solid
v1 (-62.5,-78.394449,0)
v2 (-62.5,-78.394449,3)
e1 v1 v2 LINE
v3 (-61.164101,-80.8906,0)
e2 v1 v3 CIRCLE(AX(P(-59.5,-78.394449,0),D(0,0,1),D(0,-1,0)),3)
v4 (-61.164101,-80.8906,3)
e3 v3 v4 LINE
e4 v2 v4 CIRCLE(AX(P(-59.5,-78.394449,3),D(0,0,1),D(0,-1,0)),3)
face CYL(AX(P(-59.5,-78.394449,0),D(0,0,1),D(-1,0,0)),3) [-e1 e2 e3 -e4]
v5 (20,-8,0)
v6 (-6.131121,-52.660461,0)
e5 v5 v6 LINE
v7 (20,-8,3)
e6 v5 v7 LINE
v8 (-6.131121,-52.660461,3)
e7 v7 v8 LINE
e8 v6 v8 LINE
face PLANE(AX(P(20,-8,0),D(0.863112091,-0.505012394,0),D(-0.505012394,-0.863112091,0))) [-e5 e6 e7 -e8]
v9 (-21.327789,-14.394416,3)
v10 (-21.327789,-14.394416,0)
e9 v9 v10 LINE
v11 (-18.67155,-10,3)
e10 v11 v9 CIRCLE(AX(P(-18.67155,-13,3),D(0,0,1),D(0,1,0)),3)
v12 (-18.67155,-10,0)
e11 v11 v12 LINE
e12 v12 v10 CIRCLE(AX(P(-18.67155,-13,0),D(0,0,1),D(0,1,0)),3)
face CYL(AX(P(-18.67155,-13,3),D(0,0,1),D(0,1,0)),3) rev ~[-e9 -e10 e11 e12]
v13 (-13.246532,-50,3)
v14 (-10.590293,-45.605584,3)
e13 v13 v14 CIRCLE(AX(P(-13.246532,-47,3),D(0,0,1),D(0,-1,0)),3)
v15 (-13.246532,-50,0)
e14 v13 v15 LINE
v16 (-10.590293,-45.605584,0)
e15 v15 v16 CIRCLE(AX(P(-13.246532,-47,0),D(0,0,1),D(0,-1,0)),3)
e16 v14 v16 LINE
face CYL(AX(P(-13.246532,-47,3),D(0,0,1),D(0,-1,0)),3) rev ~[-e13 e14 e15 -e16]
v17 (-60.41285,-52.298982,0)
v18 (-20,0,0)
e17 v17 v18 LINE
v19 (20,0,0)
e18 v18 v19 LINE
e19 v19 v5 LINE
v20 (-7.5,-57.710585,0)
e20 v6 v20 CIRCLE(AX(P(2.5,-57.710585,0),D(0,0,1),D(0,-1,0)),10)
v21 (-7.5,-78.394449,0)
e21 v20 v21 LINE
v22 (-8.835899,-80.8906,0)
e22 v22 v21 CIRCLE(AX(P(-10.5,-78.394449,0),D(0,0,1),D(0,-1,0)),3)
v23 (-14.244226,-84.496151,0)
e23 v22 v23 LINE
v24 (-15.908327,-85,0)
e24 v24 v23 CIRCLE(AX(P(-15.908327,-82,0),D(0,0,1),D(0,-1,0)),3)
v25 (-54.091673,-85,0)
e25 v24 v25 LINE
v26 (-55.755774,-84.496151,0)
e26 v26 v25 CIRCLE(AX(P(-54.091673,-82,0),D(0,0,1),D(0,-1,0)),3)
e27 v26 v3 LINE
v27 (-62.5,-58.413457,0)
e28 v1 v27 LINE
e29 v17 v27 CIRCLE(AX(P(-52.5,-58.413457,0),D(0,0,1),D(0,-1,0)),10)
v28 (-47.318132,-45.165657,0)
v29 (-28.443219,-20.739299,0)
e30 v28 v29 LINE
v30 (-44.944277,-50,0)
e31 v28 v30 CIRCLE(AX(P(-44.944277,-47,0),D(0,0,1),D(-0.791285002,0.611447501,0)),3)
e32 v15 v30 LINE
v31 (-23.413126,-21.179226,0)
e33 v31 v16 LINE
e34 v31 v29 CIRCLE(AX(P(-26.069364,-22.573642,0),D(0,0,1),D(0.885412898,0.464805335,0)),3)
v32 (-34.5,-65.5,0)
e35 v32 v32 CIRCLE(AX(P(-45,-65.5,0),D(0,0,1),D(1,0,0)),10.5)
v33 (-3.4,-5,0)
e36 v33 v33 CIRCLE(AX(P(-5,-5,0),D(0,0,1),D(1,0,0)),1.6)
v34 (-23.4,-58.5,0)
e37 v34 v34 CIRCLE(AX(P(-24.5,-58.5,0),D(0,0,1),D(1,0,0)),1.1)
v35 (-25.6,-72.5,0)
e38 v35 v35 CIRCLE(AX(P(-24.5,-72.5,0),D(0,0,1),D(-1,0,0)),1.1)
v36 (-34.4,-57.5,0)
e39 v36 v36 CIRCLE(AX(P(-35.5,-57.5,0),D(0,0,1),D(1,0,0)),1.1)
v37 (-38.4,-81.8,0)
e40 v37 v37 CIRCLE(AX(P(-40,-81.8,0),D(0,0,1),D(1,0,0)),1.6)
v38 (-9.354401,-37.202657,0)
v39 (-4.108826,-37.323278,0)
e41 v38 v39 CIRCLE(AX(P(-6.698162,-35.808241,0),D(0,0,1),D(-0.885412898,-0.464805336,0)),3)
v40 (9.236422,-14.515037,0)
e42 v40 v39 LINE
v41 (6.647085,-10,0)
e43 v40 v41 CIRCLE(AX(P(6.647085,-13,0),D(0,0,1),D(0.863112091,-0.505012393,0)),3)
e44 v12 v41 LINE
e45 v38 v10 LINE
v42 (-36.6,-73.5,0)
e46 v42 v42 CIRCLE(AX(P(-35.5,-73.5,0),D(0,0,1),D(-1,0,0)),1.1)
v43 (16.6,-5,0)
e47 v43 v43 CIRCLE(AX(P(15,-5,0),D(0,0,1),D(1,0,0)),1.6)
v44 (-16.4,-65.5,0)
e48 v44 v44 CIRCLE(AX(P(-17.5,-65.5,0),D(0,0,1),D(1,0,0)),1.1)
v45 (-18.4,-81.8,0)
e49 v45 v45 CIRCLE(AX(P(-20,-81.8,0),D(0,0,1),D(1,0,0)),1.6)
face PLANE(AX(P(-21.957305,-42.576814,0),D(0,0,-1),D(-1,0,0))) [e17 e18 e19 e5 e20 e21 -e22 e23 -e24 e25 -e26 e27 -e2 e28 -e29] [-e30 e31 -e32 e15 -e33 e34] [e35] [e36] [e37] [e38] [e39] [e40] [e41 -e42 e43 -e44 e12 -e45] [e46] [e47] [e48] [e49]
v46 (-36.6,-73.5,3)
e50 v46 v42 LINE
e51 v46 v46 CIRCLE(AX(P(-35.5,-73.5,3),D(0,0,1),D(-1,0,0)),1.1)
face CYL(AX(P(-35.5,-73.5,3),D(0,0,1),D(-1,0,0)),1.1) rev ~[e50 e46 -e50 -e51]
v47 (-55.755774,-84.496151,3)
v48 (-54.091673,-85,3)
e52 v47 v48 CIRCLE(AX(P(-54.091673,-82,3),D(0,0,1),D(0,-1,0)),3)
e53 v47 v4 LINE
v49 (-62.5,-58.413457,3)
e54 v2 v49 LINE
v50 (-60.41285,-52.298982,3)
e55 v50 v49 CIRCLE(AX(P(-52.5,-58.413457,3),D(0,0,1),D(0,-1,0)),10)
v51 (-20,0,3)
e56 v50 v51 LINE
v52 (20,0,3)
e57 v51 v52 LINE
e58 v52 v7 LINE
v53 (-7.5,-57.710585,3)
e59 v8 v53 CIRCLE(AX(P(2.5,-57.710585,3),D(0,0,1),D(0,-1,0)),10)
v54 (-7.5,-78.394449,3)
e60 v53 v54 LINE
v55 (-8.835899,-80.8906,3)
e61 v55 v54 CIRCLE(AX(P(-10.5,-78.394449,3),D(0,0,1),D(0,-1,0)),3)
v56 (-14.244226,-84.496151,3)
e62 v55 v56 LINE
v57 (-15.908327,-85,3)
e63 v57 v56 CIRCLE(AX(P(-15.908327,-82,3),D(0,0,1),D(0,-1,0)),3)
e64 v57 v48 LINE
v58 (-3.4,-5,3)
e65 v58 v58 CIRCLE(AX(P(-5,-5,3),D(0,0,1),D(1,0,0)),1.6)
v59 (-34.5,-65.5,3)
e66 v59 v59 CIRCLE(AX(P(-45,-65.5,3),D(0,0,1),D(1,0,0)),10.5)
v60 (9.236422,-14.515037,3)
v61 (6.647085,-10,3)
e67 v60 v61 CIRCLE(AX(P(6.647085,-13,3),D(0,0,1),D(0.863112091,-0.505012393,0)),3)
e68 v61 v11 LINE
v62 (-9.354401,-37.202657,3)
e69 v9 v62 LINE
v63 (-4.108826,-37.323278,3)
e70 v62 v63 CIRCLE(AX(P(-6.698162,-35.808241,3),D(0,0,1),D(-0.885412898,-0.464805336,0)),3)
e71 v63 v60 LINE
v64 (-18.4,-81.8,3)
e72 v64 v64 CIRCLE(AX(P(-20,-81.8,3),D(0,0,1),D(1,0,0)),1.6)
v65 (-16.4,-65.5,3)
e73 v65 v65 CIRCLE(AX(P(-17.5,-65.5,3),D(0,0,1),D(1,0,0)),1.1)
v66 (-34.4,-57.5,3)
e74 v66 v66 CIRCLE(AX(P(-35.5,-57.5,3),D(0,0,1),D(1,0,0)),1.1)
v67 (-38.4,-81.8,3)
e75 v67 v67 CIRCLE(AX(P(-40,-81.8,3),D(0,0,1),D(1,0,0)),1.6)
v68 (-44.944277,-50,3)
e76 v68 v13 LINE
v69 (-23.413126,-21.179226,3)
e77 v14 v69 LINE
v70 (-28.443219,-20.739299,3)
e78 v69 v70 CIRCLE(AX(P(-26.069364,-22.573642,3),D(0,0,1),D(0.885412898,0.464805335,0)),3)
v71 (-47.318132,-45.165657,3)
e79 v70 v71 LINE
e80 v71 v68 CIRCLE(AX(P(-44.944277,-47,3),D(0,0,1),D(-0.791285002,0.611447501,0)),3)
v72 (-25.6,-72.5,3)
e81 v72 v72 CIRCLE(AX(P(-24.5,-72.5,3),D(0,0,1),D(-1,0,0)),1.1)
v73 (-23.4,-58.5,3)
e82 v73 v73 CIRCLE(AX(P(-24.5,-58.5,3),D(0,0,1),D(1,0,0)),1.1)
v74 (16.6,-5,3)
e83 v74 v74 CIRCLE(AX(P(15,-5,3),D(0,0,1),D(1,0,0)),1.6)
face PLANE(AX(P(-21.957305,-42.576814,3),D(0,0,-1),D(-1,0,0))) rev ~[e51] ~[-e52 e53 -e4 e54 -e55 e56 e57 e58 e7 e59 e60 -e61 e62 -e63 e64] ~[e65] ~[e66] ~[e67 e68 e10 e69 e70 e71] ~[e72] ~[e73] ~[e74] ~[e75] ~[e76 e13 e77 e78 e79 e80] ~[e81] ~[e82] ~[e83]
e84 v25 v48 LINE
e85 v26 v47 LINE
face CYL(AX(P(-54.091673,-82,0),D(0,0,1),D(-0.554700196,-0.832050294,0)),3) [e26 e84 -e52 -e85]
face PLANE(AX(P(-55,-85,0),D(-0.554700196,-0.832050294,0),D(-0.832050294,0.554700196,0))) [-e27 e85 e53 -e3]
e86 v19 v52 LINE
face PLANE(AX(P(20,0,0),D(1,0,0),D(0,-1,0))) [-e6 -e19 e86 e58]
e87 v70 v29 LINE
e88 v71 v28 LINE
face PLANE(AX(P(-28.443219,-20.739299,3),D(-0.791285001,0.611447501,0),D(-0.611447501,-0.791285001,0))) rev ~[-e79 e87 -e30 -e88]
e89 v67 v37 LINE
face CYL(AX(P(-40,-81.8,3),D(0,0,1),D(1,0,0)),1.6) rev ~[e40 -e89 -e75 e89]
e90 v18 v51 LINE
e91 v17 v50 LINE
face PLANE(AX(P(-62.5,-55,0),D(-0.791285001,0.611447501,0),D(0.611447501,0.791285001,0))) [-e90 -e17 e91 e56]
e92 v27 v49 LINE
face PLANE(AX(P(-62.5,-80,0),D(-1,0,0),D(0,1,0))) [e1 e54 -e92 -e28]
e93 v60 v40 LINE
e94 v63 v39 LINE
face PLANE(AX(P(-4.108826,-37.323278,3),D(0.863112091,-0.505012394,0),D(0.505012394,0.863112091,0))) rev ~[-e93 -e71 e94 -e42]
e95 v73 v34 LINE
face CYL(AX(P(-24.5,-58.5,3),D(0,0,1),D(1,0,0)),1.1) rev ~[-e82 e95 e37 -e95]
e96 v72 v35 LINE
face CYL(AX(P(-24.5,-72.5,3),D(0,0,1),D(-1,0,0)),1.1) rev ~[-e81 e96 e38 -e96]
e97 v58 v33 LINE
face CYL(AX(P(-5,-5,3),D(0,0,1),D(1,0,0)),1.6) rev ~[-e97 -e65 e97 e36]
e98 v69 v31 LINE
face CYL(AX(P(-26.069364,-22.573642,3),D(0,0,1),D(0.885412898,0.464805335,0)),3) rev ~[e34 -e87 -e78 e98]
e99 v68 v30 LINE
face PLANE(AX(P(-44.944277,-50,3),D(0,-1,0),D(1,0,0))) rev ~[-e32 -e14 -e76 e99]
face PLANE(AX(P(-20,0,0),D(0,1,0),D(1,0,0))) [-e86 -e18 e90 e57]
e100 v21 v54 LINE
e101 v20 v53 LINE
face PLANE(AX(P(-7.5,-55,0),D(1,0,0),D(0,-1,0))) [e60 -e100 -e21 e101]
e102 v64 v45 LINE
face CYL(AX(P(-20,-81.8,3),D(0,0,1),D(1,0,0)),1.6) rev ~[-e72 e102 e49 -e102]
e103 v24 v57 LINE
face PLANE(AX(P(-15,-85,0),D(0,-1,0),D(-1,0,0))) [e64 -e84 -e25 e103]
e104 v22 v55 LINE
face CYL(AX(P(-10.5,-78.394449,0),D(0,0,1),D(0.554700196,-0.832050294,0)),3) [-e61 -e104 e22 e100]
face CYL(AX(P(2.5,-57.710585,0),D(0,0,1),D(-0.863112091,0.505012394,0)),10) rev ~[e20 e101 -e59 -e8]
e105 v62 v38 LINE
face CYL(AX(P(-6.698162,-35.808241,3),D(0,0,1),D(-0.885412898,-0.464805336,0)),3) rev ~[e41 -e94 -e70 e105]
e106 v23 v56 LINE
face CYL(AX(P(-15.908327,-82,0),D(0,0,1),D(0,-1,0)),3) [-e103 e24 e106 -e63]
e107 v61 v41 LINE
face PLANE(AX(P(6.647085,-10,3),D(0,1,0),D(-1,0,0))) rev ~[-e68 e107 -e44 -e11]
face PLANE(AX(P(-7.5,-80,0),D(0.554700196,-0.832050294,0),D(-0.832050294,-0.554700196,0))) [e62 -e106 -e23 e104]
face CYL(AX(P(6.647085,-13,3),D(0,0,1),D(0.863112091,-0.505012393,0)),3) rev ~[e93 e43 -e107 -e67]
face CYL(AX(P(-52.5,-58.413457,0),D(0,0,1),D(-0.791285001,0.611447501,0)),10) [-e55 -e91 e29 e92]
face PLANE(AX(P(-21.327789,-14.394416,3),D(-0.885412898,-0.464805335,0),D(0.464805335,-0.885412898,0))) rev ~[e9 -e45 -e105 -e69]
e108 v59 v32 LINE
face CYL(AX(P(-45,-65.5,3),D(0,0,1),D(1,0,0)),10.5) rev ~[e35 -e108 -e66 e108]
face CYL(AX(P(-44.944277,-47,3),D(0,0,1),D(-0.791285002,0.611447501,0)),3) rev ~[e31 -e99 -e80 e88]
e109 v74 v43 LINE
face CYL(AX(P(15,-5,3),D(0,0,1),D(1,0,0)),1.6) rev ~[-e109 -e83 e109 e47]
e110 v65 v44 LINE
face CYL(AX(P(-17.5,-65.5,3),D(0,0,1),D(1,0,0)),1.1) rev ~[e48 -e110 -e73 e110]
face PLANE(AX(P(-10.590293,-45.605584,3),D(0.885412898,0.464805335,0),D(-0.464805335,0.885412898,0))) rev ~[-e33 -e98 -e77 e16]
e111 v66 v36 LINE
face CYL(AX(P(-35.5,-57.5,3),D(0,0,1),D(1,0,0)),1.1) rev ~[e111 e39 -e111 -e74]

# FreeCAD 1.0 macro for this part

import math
import FreeCAD as App
import Part
import Sketcher

V = App.Vector


def edges_at(feature, points):
    """Names of the edges that pass closest to the given points."""
    edges = feature.Shape.Edges
    near = lambda p: min(range(len(edges)), key=lambda i: edges[i].distToShape(Part.Vertex(*p))[0])
    return sorted({f"Edge{near(p) + 1}" for p in points})

doc = App.newDocument("Part")
params = doc.addObject("Spreadsheet::Sheet", "Params")
for row, (alias, value) in enumerate([
    ("sketch1_width", "40 mm"),
    ("sketch1_height", "25 mm"),
    ("sketch1_height2", "8 mm"),
    ("pad1_length", "3 mm"),
    ("sketch2_diameter", "21 mm"),
    ("sketch2_diameter2", "3.2 mm"),
    ("sketch2_diameter3", "2.2 mm"),
    ("sketch3_radius", "3 mm"),
    ("pocket2_length", "10 mm"),
    ("fillet_radius", "10 mm"),
    ("fillet2_radius", "3 mm"),
], start=1):
    params.set(f"A{row}", alias)
    params.set(f"B{row}", "=" + value)
    params.setAlias(f"B{row}", alias)

body = doc.addObject("PartDesign::Body", "Body")

sketch1 = body.newObject("Sketcher::SketchObject", "Sketch")
sketch1.AttachmentSupport = (doc.getObject("XY_Plane"), [""])
sketch1.MapMode = "FlatFace"
sketch1.addGeometry(Part.LineSegment(V(20, 0, 0), V(-20, 0, 0)), False)
sketch1.addGeometry(Part.LineSegment(V(-20, 0, 0), V(-62, -55, 0)), False)
sketch1.addGeometry(Part.LineSegment(V(-62, -55, 0), V(-62, -80, 0)), False)
sketch1.addGeometry(Part.LineSegment(V(-62, -80, 0), V(-55, -85, 0)), False)
sketch1.addGeometry(Part.LineSegment(V(-55, -85, 0), V(-15, -85, 0)), False)
sketch1.addGeometry(Part.LineSegment(V(-15, -85, 0), V(-8, -80, 0)), False)
sketch1.addGeometry(Part.LineSegment(V(-8, -80, 0), V(-8, -55, 0)), False)
sketch1.addGeometry(Part.LineSegment(V(-8, -55, 0), V(20, -8, 0)), False)
sketch1.addGeometry(Part.LineSegment(V(20, -8, 0), V(20, 0, 0)), False)
sketch1.addConstraint(Sketcher.Constraint("Coincident", 0, 2, 1, 1))
sketch1.addConstraint(Sketcher.Constraint("Coincident", 1, 2, 2, 1))
sketch1.addConstraint(Sketcher.Constraint("Coincident", 2, 2, 3, 1))
sketch1.addConstraint(Sketcher.Constraint("Coincident", 3, 2, 4, 1))
sketch1.addConstraint(Sketcher.Constraint("Coincident", 4, 2, 5, 1))
sketch1.addConstraint(Sketcher.Constraint("Coincident", 5, 2, 6, 1))
sketch1.addConstraint(Sketcher.Constraint("Coincident", 6, 2, 7, 1))
sketch1.addConstraint(Sketcher.Constraint("Coincident", 7, 2, 8, 1))
sketch1.addConstraint(Sketcher.Constraint("Coincident", 8, 2, 0, 1))
sketch1.addConstraint(Sketcher.Constraint("Horizontal", 0))
sketch1.addConstraint(Sketcher.Constraint("Vertical", 2))
sketch1.addConstraint(Sketcher.Constraint("Horizontal", 4))
sketch1.addConstraint(Sketcher.Constraint("Vertical", 6))
sketch1.addConstraint(Sketcher.Constraint("Vertical", 8))
sketch1.addConstraint(Sketcher.Constraint("Symmetric", 0, 2, 8, 2, -1, 1))
sketch1.addConstraint(Sketcher.Constraint("Horizontal", 2, 2, 5, 2))
sketch1.addConstraint(Sketcher.Constraint("Horizontal", 1, 2, 6, 2))
sketch1.addConstraint(Sketcher.Constraint("Equal", 0, 4))
sketch1.addConstraint(Sketcher.Constraint("Equal", 3, 5))
sketch1.addConstraint(Sketcher.Constraint("DistanceX", 0, 2, 0, 1, 40.0))
sketch1.addConstraint(Sketcher.Constraint("DistanceY", 2, 2, 2, 1, 25.0))
sketch1.addConstraint(Sketcher.Constraint("DistanceY", 8, 1, 8, 2, 8.0))
sketch1.addConstraint(Sketcher.Constraint("DistanceY", 1, 2, -1, 1, 55.0))
sketch1.addConstraint(Sketcher.Constraint("DistanceX", 3, 2, -1, 1, 55.0))
sketch1.addConstraint(Sketcher.Constraint("DistanceY", 3, 2, -1, 1, 85.0))
sketch1.addConstraint(Sketcher.Constraint("DistanceX", 2, 2, 5, 2, 55.0))
sketch1.setExpression("Constraints[19]", "Params.sketch1_width")
sketch1.setExpression("Constraints[20]", "Params.sketch1_height")
sketch1.setExpression("Constraints[21]", "Params.sketch1_height2")
pad1 = body.newObject("PartDesign::Pad", "Pad")
pad1.Profile = sketch1
pad1.setExpression("Length", "Params.pad1_length")

sketch2 = body.newObject("Sketcher::SketchObject", "Sketch001")
sketch2.AttachmentSupport = (doc.getObject("XY_Plane"), [""])
sketch2.MapMode = "FlatFace"
sketch2.AttachmentOffset = App.Placement(V(0, 0, 3), App.Rotation())
sketch2.addGeometry(Part.Circle(V(-5, -5, 0), V(0, 0, 1), 1.6), False)
sketch2.addGeometry(Part.Circle(V(15, -5, 0), V(0, 0, 1), 1.6), False)
sketch2.addGeometry(Part.Circle(V(-40, -81.8, 0), V(0, 0, 1), 1.6), False)
sketch2.addGeometry(Part.Circle(V(-20, -81.8, 0), V(0, 0, 1), 1.6), False)
sketch2.addGeometry(Part.Circle(V(-17.5, -65.5, 0), V(0, 0, 1), 1.1), False)
sketch2.addGeometry(Part.Circle(V(-24.5, -58.5, 0), V(0, 0, 1), 1.1), False)
sketch2.addGeometry(Part.Circle(V(-35.5, -57.5, 0), V(0, 0, 1), 1.1), False)
sketch2.addGeometry(Part.Circle(V(-35.5, -73.5, 0), V(0, 0, 1), 1.1), False)
sketch2.addGeometry(Part.Circle(V(-24.5, -72.5, 0), V(0, 0, 1), 1.1), False)
sketch2.addGeometry(Part.Circle(V(-45, -65.5, 0), V(0, 0, 1), 10.5), False)
sketch2.addConstraint(Sketcher.Constraint("Equal", 0, 1))
sketch2.addConstraint(Sketcher.Constraint("Equal", 1, 2))
sketch2.addConstraint(Sketcher.Constraint("Equal", 2, 3))
sketch2.addConstraint(Sketcher.Constraint("Equal", 4, 5))
sketch2.addConstraint(Sketcher.Constraint("Equal", 5, 6))
sketch2.addConstraint(Sketcher.Constraint("Equal", 6, 7))
sketch2.addConstraint(Sketcher.Constraint("Equal", 7, 8))
sketch2.addConstraint(Sketcher.Constraint("Horizontal", 0, 3, 1, 3))
sketch2.addConstraint(Sketcher.Constraint("Horizontal", 2, 3, 3, 3))
sketch2.addConstraint(Sketcher.Constraint("Horizontal", 4, 3, 9, 3))
sketch2.addConstraint(Sketcher.Constraint("Vertical", 6, 3, 7, 3))
sketch2.addConstraint(Sketcher.Constraint("Vertical", 5, 3, 8, 3))
sketch2.addConstraint(Sketcher.Constraint("Diameter", 9, 21.0))
sketch2.addConstraint(Sketcher.Constraint("Diameter", 0, 3.2))
sketch2.addConstraint(Sketcher.Constraint("Diameter", 4, 2.2))
sketch2.addConstraint(Sketcher.Constraint("DistanceX", 0, 3, -1, 1, 5.0))
sketch2.addConstraint(Sketcher.Constraint("DistanceY", 0, 3, -1, 1, 5.0))
sketch2.addConstraint(Sketcher.Constraint("DistanceX", -1, 1, 1, 3, 15.0))
sketch2.addConstraint(Sketcher.Constraint("DistanceX", 2, 3, -1, 1, 40.0))
sketch2.addConstraint(Sketcher.Constraint("DistanceX", 3, 3, -1, 1, 20.0))
sketch2.addConstraint(Sketcher.Constraint("DistanceX", 9, 3, -1, 1, 45.0))
sketch2.addConstraint(Sketcher.Constraint("DistanceX", 5, 3, 4, 3, 7.0))
sketch2.addConstraint(Sketcher.Constraint("DistanceY", 4, 3, 5, 3, 7.0))
sketch2.addConstraint(Sketcher.Constraint("DistanceX", 6, 3, 5, 3, 11.0))
sketch2.addConstraint(Sketcher.Constraint("DistanceY", 5, 3, 6, 3, 1.0))
sketch2.addConstraint(Sketcher.Constraint("DistanceY", 7, 3, 6, 3, 16.0))
sketch2.addConstraint(Sketcher.Constraint("DistanceY", 8, 3, 4, 3, 7.0))
sketch2.addConstraint(Sketcher.Constraint("DistanceY", 2, 3, -1, 1, 81.8))
sketch2.addConstraint(Sketcher.Constraint("DistanceX", 4, 3, -1, 1, 17.5))
sketch2.addConstraint(Sketcher.Constraint("DistanceY", 4, 3, -1, 1, 65.5))
sketch2.setExpression("Constraints[12]", "Params.sketch2_diameter")
sketch2.setExpression("Constraints[13]", "Params.sketch2_diameter2")
sketch2.setExpression("Constraints[14]", "Params.sketch2_diameter3")
pocket1 = body.newObject("PartDesign::Pocket", "Pocket")
pocket1.Profile = sketch2
pocket1.Type = "ThroughAll"

sketch3 = body.newObject("Sketcher::SketchObject", "Sketch002")
sketch3.AttachmentSupport = (doc.getObject("XY_Plane"), [""])
sketch3.MapMode = "FlatFace"
sketch3.AttachmentOffset = App.Placement(V(0, 0, 3), App.Rotation())
sketch3.addGeometry(Part.LineSegment(V(-28.4, -20.7, 0), V(-47.3, -45.2, 0)), False)
sketch3.addGeometry(Part.ArcOfCircle(Part.Circle(V(-44.9, -47, 0), V(0, 0, 1), 3), math.radians(142), math.radians(270)), False)
sketch3.addGeometry(Part.LineSegment(V(-44.9, -50, 0), V(-13.2, -50, 0)), False)
sketch3.addGeometry(Part.ArcOfCircle(Part.Circle(V(-13.2, -47, 0), V(0, 0, 1), 3), math.radians(-90), math.radians(28)), False)
sketch3.addGeometry(Part.LineSegment(V(-10.6, -45.6, 0), V(-23.4, -21.2, 0)), False)
sketch3.addGeometry(Part.ArcOfCircle(Part.Circle(V(-26.1, -22.6, 0), V(0, 0, 1), 3), math.radians(28), math.radians(142)), False)
sketch3.addGeometry(Part.LineSegment(V(-4.1, -37.3, 0), V(9.2, -14.5, 0)), False)
sketch3.addGeometry(Part.ArcOfCircle(Part.Circle(V(6.6, -13, 0), V(0, 0, 1), 3), math.radians(-30), math.radians(90)), False)
sketch3.addGeometry(Part.LineSegment(V(6.6, -10, 0), V(-18.7, -10, 0)), False)
sketch3.addGeometry(Part.ArcOfCircle(Part.Circle(V(-18.7, -13, 0), V(0, 0, 1), 3), math.radians(90), math.radians(208)), False)
sketch3.addGeometry(Part.LineSegment(V(-21.3, -14.4, 0), V(-9.4, -37.2, 0)), False)
sketch3.addGeometry(Part.ArcOfCircle(Part.Circle(V(-6.7, -35.8, 0), V(0, 0, 1), 3), math.radians(-152), math.radians(-30)), False)
sketch3.addConstraint(Sketcher.Constraint("Tangent", 0, 2, 1, 1))
sketch3.addConstraint(Sketcher.Constraint("Tangent", 1, 2, 2, 1))
sketch3.addConstraint(Sketcher.Constraint("Tangent", 2, 2, 3, 1))
sketch3.addConstraint(Sketcher.Constraint("Tangent", 3, 2, 4, 1))
sketch3.addConstraint(Sketcher.Constraint("Tangent", 4, 2, 5, 1))
sketch3.addConstraint(Sketcher.Constraint("Tangent", 5, 2, 0, 1))
sketch3.addConstraint(Sketcher.Constraint("Tangent", 6, 2, 7, 1))
sketch3.addConstraint(Sketcher.Constraint("Tangent", 7, 2, 8, 1))
sketch3.addConstraint(Sketcher.Constraint("Tangent", 8, 2, 9, 1))
sketch3.addConstraint(Sketcher.Constraint("Tangent", 9, 2, 10, 1))
sketch3.addConstraint(Sketcher.Constraint("Tangent", 10, 2, 11, 1))
sketch3.addConstraint(Sketcher.Constraint("Tangent", 11, 2, 6, 1))
sketch3.addConstraint(Sketcher.Constraint("Horizontal", 2))
sketch3.addConstraint(Sketcher.Constraint("Horizontal", 8))
sketch3.addConstraint(Sketcher.Constraint("Equal", 1, 3))
sketch3.addConstraint(Sketcher.Constraint("Equal", 3, 5))
sketch3.addConstraint(Sketcher.Constraint("Equal", 5, 7))
sketch3.addConstraint(Sketcher.Constraint("Equal", 7, 9))
sketch3.addConstraint(Sketcher.Constraint("Equal", 9, 11))
sketch3.addConstraint(Sketcher.Constraint("Parallel", 4, 10))
sketch3.addConstraint(Sketcher.Constraint("Radius", 1, 3.0))
sketch3.addConstraint(Sketcher.Constraint("DistanceY", 1, 3, -1, 1, 47.0))
sketch3.addConstraint(Sketcher.Constraint("DistanceY", 7, 3, -1, 1, 13.0))
sketch3.addConstraint(Sketcher.Constraint("DistanceY", 5, 2, -1, 1, 20.739299))
sketch3.addConstraint(Sketcher.Constraint("DistanceX", 10, 2, -1, 1, 9.354401))
sketch3.addConstraint(Sketcher.Constraint("DistanceY", 11, 3, 5, 3, 13.234599))
sketch3.addConstraint(Sketcher.Constraint("DistanceX", 0, 2, 3, 3, 34.071601))
sketch3.addConstraint(Sketcher.Constraint("Distance", 0, 30.869229))
sketch3.addConstraint(Sketcher.Constraint("DistanceX", 8, 2, 8, 1, 25.318636))
sketch3.addConstraint(Sketcher.Constraint("DistanceX", 3, 3, -1, 1, 13.246532))
sketch3.setExpression("Constraints[20]", "Params.sketch3_radius")
pocket2 = body.newObject("PartDesign::Pocket", "Pocket001")
pocket2.Profile = sketch3
pocket2.setExpression("Length", "Params.pocket2_length")
doc.recompute()

fillet = body.newObject("PartDesign::Fillet", "Fillet")
fillet.Base = (pocket2, edges_at(pocket2, [(-62.5, -55, 1.5), (-7.5, -55, 1.5)]))
fillet.setExpression("Radius", "Params.fillet_radius")
doc.recompute()

fillet2 = body.newObject("PartDesign::Fillet", "Fillet001")
fillet2.Base = (fillet, edges_at(fillet, [
    (-62.5, -80, 1.5),
    (-7.5, -80, 1.5),
    (-15, -85, 1.5),
    (-55, -85, 1.5),
]))
fillet2.setExpression("Radius", "Params.fillet2_radius")

doc.recompute()
